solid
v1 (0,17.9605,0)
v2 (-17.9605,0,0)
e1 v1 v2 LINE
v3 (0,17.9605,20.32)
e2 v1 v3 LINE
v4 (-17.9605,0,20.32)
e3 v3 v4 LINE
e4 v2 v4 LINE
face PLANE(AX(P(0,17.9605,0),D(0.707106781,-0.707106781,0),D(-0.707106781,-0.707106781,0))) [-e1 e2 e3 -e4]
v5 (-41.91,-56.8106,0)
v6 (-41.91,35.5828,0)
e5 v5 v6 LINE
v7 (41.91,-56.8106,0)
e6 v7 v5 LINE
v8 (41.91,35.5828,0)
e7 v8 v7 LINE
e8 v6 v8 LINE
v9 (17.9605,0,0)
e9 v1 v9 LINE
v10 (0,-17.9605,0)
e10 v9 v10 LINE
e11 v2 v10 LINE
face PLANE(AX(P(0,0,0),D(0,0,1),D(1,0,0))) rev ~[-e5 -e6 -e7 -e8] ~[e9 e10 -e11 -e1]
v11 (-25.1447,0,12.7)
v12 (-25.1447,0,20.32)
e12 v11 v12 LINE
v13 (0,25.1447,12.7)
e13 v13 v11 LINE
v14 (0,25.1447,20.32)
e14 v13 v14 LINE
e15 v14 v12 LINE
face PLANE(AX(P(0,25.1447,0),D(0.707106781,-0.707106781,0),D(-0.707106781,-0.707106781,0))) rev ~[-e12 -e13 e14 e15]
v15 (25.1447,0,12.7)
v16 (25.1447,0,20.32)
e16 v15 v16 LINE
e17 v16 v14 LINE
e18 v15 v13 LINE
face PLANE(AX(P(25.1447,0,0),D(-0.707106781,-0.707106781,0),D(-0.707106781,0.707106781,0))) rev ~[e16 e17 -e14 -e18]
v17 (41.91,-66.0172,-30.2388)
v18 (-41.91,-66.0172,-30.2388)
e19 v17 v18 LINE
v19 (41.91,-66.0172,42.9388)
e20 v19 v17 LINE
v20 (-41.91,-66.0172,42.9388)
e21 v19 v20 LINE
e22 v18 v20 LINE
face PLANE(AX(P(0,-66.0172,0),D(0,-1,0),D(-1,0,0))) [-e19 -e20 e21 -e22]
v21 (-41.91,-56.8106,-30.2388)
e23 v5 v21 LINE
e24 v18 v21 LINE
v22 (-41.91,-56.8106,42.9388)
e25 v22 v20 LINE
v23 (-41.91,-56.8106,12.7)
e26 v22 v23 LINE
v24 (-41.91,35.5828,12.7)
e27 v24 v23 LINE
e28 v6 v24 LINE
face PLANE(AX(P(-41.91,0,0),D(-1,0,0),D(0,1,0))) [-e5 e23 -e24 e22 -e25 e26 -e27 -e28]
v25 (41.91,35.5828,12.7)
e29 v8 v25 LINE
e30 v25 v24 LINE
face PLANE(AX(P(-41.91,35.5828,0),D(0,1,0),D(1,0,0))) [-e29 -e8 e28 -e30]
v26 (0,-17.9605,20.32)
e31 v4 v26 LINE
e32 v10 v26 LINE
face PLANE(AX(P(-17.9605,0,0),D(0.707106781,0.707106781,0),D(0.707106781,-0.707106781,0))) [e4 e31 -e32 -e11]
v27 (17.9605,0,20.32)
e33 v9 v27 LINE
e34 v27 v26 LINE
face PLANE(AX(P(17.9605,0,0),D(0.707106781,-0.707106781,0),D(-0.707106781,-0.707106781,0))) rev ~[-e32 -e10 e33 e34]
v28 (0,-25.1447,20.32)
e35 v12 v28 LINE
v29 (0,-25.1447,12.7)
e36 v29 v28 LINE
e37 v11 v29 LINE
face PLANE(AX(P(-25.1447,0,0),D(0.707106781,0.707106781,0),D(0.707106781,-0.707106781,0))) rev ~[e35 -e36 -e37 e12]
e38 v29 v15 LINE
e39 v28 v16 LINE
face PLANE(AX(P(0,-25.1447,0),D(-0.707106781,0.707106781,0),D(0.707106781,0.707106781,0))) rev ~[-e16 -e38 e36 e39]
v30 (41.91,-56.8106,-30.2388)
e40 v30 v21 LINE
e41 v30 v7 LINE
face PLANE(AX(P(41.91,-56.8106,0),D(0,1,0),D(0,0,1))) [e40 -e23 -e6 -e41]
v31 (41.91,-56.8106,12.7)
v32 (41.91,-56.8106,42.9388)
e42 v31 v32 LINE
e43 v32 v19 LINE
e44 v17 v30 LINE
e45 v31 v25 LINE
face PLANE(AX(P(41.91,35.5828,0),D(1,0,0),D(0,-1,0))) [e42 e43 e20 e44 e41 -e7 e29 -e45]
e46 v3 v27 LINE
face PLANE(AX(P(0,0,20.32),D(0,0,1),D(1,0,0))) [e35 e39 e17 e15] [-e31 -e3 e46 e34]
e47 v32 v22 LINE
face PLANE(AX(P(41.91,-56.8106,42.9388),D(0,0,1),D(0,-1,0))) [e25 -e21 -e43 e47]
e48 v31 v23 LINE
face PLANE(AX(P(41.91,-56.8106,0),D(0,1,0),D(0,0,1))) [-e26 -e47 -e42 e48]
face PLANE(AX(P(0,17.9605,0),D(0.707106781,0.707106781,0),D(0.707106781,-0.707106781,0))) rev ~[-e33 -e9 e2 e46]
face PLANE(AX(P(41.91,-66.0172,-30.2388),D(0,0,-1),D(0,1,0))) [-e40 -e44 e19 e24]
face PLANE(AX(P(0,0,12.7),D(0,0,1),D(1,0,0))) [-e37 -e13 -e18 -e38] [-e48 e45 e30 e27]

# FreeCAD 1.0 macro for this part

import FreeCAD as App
import Part
import Sketcher
from FreeCAD import Vector
Q = App.Units.Quantity


def add_polygon(sketch, points):
    """Adds a closed chain of lines whose ends are joined by coincident constraints."""
    first, n = sketch.GeometryCount, len(points)
    for a, b in zip(points, points[1:] + points[:1]):
        sketch.addGeometry(Part.LineSegment(App.Vector(*a, 0), App.Vector(*b, 0)), False)
    for i in range(n):
        sketch.addConstraint(Sketcher.Constraint("Coincident", first + i, 2, first + (i + 1) % n, 1))

doc = App.newDocument("Part")
body = doc.addObject("PartDesign::Body", "Body")

sketch1 = body.newObject("Sketcher::SketchObject", "Sketch")
sketch1.AttachmentSupport = (doc.getObject("XY_Plane"), [""])
sketch1.MapMode = "FlatFace"
add_polygon(sketch1, [(0, 25), (-25, 0), (0, -25), (25, 0)])
add_polygon(sketch1, [(-18, 0), (0, 18), (18, 0), (0, -18)])
sketch1.addConstraint([
    Sketcher.Constraint("Symmetric", 0, 2, 2, 2, -1, 1),
    Sketcher.Constraint("Symmetric", 1, 2, 3, 2, -1, 1),
    Sketcher.Constraint("Symmetric", 4, 2, 6, 2, -1, 1),
    Sketcher.Constraint("Symmetric", 5, 2, 7, 2, -1, 1),
    Sketcher.Constraint("PointOnObject", 0, 2, -1),
    Sketcher.Constraint("PointOnObject", 1, 2, -2),
    Sketcher.Constraint("PointOnObject", 4, 2, -2),
    Sketcher.Constraint("PointOnObject", 5, 2, -1),
    Sketcher.Constraint("Perpendicular", 0, 1),
    Sketcher.Constraint("Perpendicular", 3, 4),
    Sketcher.Constraint("Distance", 4, Q("1 in")),
    Sketcher.Constraint("Distance", 0, Q("1.4 in")),
])
pad1 = body.newObject("PartDesign::Pad", "Pad")
pad1.Profile = sketch1
pad1.Length = Q("0.8 in")

sketch2 = body.newObject("Sketcher::SketchObject", "Sketch001")
sketch2.AttachmentSupport = (doc.getObject("XY_Plane"), [""])
sketch2.MapMode = "FlatFace"
add_polygon(sketch2, [(-42, 36), (-42, -66), (42, -66), (42, 36)])
add_polygon(sketch2, [(-25, 0), (0, 25), (25, 0), (0, -25)])
sketch2.addConstraint([
    Sketcher.Constraint("Vertical", 0),
    Sketcher.Constraint("Horizontal", 1),
    Sketcher.Constraint("Vertical", 2),
    Sketcher.Constraint("Horizontal", 3),
    Sketcher.Constraint("Symmetric", 4, 2, 6, 2, -1, 1),
    Sketcher.Constraint("Symmetric", 5, 2, 7, 2, -1, 1),
    Sketcher.Constraint("PointOnObject", 4, 2, -2),
    Sketcher.Constraint("PointOnObject", 5, 2, -1),
    Sketcher.Constraint("Perpendicular", 4, 5),
    Sketcher.Constraint("DistanceY", 0, 2, 0, 1, Q("4 in")),
    Sketcher.Constraint("DistanceX", 1, 1, 1, 2, Q("3.3 in")),
    Sketcher.Constraint("Distance", 4, Q("1.4 in")),
    Sketcher.Constraint("DistanceX", 0, 2, -1, 1, Q("1.65 in")),
    Sketcher.Constraint("DistanceY", 0, 2, -1, 1, Q("2.5991 in")),
])
pad2 = body.newObject("PartDesign::Pad", "Pad001")
pad2.Profile = sketch2
pad2.Length = Q("0.5 in")

sketch3 = body.newObject("Sketcher::SketchObject", "Sketch002")
sketch3.AttachmentSupport = (doc.getObject("YZ_Plane"), [""])
sketch3.MapMode = "FlatFace"
sketch3.AttachmentOffset = App.Placement(Vector(0, 0, 1.65 * 25.4), App.Rotation())
add_polygon(sketch3, [(-66, -30), (-57, -30), (-57, 43), (-66, 43)])
sketch3.addConstraint([
    Sketcher.Constraint("Horizontal", 0),
    Sketcher.Constraint("Vertical", 1),
    Sketcher.Constraint("Horizontal", 2),
    Sketcher.Constraint("Vertical", 3),
    Sketcher.Constraint("DistanceY", 1, 1, 1, 2, Q("2.881 in")),
    Sketcher.Constraint("DistanceX", 0, 1, 0, 2, 9.2066),
    Sketcher.Constraint("DistanceY", 0, 2, -1, 1, Q("1.1905 in")),
    Sketcher.Constraint("DistanceX", 2, 2, -1, 1, Q("2.5991 in")),
])
pad3 = body.newObject("PartDesign::Pad", "Pad002")
pad3.Profile = sketch3
pad3.Length = Q("3.3 in")
pad3.Reversed = True

doc.recompute()
